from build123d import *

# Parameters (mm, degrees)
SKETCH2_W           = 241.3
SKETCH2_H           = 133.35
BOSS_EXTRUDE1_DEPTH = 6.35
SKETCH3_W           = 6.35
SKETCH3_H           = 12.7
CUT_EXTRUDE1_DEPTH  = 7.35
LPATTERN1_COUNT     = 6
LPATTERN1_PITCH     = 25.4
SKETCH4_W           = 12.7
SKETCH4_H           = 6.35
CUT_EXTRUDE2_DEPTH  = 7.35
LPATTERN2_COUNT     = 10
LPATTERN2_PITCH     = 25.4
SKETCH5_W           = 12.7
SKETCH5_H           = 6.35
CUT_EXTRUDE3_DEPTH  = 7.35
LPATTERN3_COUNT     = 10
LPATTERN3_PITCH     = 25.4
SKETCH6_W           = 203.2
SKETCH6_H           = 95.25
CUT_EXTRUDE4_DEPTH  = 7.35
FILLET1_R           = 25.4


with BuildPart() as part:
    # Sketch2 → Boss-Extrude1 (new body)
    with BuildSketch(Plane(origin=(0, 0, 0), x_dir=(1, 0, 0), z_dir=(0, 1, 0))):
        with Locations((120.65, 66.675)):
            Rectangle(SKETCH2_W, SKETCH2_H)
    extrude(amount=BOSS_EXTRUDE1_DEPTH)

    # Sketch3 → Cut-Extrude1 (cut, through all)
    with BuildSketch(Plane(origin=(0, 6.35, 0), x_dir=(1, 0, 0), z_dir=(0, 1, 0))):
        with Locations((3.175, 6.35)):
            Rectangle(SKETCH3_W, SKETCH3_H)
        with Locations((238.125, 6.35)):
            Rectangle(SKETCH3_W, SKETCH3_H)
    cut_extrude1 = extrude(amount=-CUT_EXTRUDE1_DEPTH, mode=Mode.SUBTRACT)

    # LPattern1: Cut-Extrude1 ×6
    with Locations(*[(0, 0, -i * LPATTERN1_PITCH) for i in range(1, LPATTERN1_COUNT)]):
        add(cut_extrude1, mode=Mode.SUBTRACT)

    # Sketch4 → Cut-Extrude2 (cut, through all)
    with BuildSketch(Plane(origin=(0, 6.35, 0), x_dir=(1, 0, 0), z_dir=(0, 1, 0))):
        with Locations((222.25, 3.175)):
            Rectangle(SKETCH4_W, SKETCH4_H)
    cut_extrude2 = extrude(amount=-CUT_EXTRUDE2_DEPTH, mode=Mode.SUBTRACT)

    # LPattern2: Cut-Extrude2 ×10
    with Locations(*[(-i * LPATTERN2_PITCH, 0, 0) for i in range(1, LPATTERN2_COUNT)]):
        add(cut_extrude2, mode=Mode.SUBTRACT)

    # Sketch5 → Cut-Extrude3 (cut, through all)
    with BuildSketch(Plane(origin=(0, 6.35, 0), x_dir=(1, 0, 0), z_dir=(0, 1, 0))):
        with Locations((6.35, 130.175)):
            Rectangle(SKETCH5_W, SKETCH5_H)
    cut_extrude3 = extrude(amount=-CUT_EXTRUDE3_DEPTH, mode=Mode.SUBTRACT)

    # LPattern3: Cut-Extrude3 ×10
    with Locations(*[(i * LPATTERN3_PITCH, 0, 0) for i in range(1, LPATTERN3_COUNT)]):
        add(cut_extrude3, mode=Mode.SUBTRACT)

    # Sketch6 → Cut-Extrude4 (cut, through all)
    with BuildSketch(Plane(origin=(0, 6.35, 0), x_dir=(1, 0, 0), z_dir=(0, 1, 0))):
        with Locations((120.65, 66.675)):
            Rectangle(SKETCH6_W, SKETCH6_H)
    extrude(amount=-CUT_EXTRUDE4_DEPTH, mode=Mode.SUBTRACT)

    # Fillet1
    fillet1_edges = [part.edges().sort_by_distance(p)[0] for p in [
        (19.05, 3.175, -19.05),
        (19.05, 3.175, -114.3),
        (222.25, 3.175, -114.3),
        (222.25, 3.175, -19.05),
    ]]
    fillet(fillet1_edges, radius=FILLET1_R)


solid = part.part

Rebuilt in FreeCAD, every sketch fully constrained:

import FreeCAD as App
import Part
import Sketcher

V = App.Vector
Q = App.Units.Quantity


def edges_at(feature, points):
    """Names of the edges that pass closest to the given points."""
    edges = feature.Shape.Edges
    near = lambda p: min(range(len(edges)), key=lambda i: edges[i].distToShape(Part.Vertex(*p))[0])
    return sorted({f"Edge{near(p) + 1}" for p in points})


def add_polygon(sketch, points):
    """Adds a closed chain of lines whose ends are joined by coincident constraints."""
    first, n = sketch.GeometryCount, len(points)
    for a, b in zip(points, points[1:] + points[:1]):
        sketch.addGeometry(Part.LineSegment(App.Vector(*a, 0), App.Vector(*b, 0)), False)
    for i in range(n):
        sketch.addConstraint(Sketcher.Constraint("Coincident", first + i, 2, first + (i + 1) % n, 1))

doc = App.newDocument("Part")
body = doc.addObject("PartDesign::Body", "Body")

sketch1 = body.newObject("Sketcher::SketchObject", "Sketch")
sketch1.AttachmentSupport = (doc.getObject("XZ_Plane"), [""])
sketch1.MapMode = "FlatFace"
add_polygon(sketch1, [(0, -133), (0, 0), (241, 0), (241, -133)])
sketch1.addConstraint([
    Sketcher.Constraint("Vertical", 0),
    Sketcher.Constraint("Horizontal", 1),
    Sketcher.Constraint("Vertical", 2),
    Sketcher.Constraint("Horizontal", 3),
    Sketcher.Constraint("Coincident", 0, 2, -1, 1),
    Sketcher.Constraint("DistanceX", 1, 1, 1, 2, Q("9.5 in")),
    Sketcher.Constraint("DistanceY", 0, 1, 0, 2, Q("5.25 in")),
])
pad1 = body.newObject("PartDesign::Pad", "Pad")
pad1.Profile = sketch1
pad1.Length = Q("0.25 in")
pad1.Reversed = True

sketch2 = body.newObject("Sketcher::SketchObject", "Sketch001")
sketch2.AttachmentSupport = (doc.getObject("XZ_Plane"), [""])
sketch2.MapMode = "FlatFace"
sketch2.AttachmentOffset = App.Placement(V(0, 0, -0.25 * 25.4), App.Rotation())
add_polygon(sketch2, [(0, -13), (0, 0), (6, 0), (6, -13)])
add_polygon(sketch2, [(235, -13), (235, 0), (241, 0), (241, -13)])
sketch2.addConstraint([
    Sketcher.Constraint("Vertical", 0),
    Sketcher.Constraint("Horizontal", 1),
    Sketcher.Constraint("Vertical", 2),
    Sketcher.Constraint("Horizontal", 3),
    Sketcher.Constraint("Vertical", 4),
    Sketcher.Constraint("Horizontal", 5),
    Sketcher.Constraint("Vertical", 6),
    Sketcher.Constraint("Horizontal", 7),
    Sketcher.Constraint("Coincident", 0, 2, -1, 1),
    Sketcher.Constraint("PointOnObject", 4, 2, -1),
    Sketcher.Constraint("Horizontal", 3, 2, 6, 2),
    Sketcher.Constraint("Equal", 3, 5),
    Sketcher.Constraint("DistanceY", 0, 1, 0, 2, Q("0.5 in")),
    Sketcher.Constraint("DistanceX", 1, 2, 4, 2, Q("9 in")),
    Sketcher.Constraint("DistanceX", 1, 1, 1, 2, Q("0.25 in")),
])
pocket1 = body.newObject("PartDesign::Pocket", "Pocket")
pocket1.Profile = sketch2
pocket1.Type = "ThroughAll"
pocket1.Reversed = True
doc.recompute()

linearpattern = body.newObject("PartDesign::LinearPattern", "LinearPattern")
linearpattern.Originals = [pocket1]
linearpattern.Direction = (doc.getObject("Z_Axis"), [""])
linearpattern.Mode = "offset"
linearpattern.Offset = Q("1 in")
linearpattern.Occurrences = 6
linearpattern.Reversed = True
body.Tip = linearpattern

sketch3 = body.newObject("Sketcher::SketchObject", "Sketch002")
sketch3.AttachmentSupport = (doc.getObject("XZ_Plane"), [""])
sketch3.MapMode = "FlatFace"
sketch3.AttachmentOffset = App.Placement(V(0, 0, -0.25 * 25.4), App.Rotation())
add_polygon(sketch3, [(216, -6), (216, 0), (229, 0), (229, -6)])
sketch3.addConstraint([
    Sketcher.Constraint("Vertical", 0),
    Sketcher.Constraint("Horizontal", 1),
    Sketcher.Constraint("Vertical", 2),
    Sketcher.Constraint("Horizontal", 3),
    Sketcher.Constraint("PointOnObject", 0, 2, -1),
    Sketcher.Constraint("DistanceX", 1, 1, 1, 2, Q("0.5 in")),
    Sketcher.Constraint("DistanceX", -1, 1, 1, 2, Q("9 in")),
    Sketcher.Constraint("DistanceY", 0, 1, 0, 2, Q("0.25 in")),
])
pocket2 = body.newObject("PartDesign::Pocket", "Pocket001")
pocket2.Profile = sketch3
pocket2.Type = "ThroughAll"
pocket2.Reversed = True
doc.recompute()

linearpattern2 = body.newObject("PartDesign::LinearPattern", "LinearPattern001")
linearpattern2.Originals = [pocket2]
linearpattern2.Direction = (doc.getObject("X_Axis"), [""])
linearpattern2.Mode = "offset"
linearpattern2.Offset = Q("1 in")
linearpattern2.Occurrences = 10
linearpattern2.Reversed = True
body.Tip = linearpattern2

sketch4 = body.newObject("Sketcher::SketchObject", "Sketch003")
sketch4.AttachmentSupport = (doc.getObject("XZ_Plane"), [""])
sketch4.MapMode = "FlatFace"
sketch4.AttachmentOffset = App.Placement(V(0, 0, -0.25 * 25.4), App.Rotation())
add_polygon(sketch4, [(0, -133), (0, -127), (13, -127), (13, -133)])
sketch4.addConstraint([
    Sketcher.Constraint("Vertical", 0),
    Sketcher.Constraint("Horizontal", 1),
    Sketcher.Constraint("Vertical", 2),
    Sketcher.Constraint("Horizontal", 3),
    Sketcher.Constraint("PointOnObject", 0, 2, -2),
    Sketcher.Constraint("DistanceX", 1, 1, 1, 2, Q("0.5 in")),
    Sketcher.Constraint("DistanceY", 0, 2, -1, 1, Q("5 in")),
    Sketcher.Constraint("DistanceY", 0, 1, 0, 2, Q("0.25 in")),
])
pocket3 = body.newObject("PartDesign::Pocket", "Pocket002")
pocket3.Profile = sketch4
pocket3.Type = "ThroughAll"
pocket3.Reversed = True
doc.recompute()

linearpattern3 = body.newObject("PartDesign::LinearPattern", "LinearPattern002")
linearpattern3.Originals = [pocket3]
linearpattern3.Direction = (doc.getObject("X_Axis"), [""])
linearpattern3.Mode = "offset"
linearpattern3.Offset = Q("1 in")
linearpattern3.Occurrences = 10
body.Tip = linearpattern3

sketch5 = body.newObject("Sketcher::SketchObject", "Sketch004")
sketch5.AttachmentSupport = (doc.getObject("XZ_Plane"), [""])
sketch5.MapMode = "FlatFace"
sketch5.AttachmentOffset = App.Placement(V(0, 0, -0.25 * 25.4), App.Rotation())
add_polygon(sketch5, [(19, -114), (19, -19), (222, -19), (222, -114)])
sketch5.addConstraint([
    Sketcher.Constraint("Vertical", 0),
    Sketcher.Constraint("Horizontal", 1),
    Sketcher.Constraint("Vertical", 2),
    Sketcher.Constraint("Horizontal", 3),
    Sketcher.Constraint("DistanceX", 1, 1, 1, 2, Q("8 in")),
    Sketcher.Constraint("DistanceY", 0, 1, 0, 2, Q("3.75 in")),
    Sketcher.Constraint("DistanceY", 2, 2, -1, 1, Q("4.5 in")),
    Sketcher.Constraint("DistanceX", -1, 1, 0, 2, Q("0.75 in")),
])
pocket4 = body.newObject("PartDesign::Pocket", "Pocket003")
pocket4.Profile = sketch5
pocket4.Type = "ThroughAll"
pocket4.Reversed = True
doc.recompute()

fillet = body.newObject("PartDesign::Fillet", "Fillet")
fillet.Base = (pocket4, edges_at(pocket4, [
    (19.05, 3.175, -19.05),
    (19.05, 3.175, -114.3),
    (222.25, 3.175, -114.3),
    (222.25, 3.175, -19.05),
]))
fillet.Radius = Q("1 in")

doc.recompute()
